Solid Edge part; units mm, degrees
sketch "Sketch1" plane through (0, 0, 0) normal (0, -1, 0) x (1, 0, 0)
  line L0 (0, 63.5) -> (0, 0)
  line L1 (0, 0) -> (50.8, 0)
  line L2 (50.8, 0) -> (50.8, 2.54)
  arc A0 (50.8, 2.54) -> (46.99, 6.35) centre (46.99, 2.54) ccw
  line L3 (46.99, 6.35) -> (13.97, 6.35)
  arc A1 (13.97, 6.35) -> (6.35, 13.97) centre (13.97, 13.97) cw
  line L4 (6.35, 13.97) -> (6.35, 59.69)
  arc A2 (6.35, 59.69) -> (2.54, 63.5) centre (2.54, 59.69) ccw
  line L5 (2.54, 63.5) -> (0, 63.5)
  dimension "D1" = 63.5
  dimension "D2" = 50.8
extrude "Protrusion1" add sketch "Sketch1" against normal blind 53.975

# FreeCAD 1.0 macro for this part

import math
import FreeCAD as App
import Part
import Sketcher
Q = App.Units.Quantity

doc = App.newDocument("Part")
params = doc.addObject("Spreadsheet::Sheet", "Params")
for row, (alias, value) in enumerate([
    ("sketch1_radius", "0.3 in"),
    ("sketch1_width", "2 in"),
    ("sketch1_radius2", "0.15 in"),
    ("sketch1_width2", "0.1 in"),
    ("sketch1_height", "2.5 in"),
    ("pad1_length", "2.125 in"),
], start=1):
    params.set(f"A{row}", alias)
    params.set(f"B{row}", "=" + value)
    params.setAlias(f"B{row}", alias)

body = doc.addObject("PartDesign::Body", "Body")

sketch1 = body.newObject("Sketcher::SketchObject", "Sketch")
sketch1.AttachmentSupport = (doc.getObject("XZ_Plane"), [""])
sketch1.MapMode = "FlatFace"
sketch1.addGeometry([
    Part.LineSegment(App.Vector(2.54, 63.5, 0), App.Vector(0, 63.5, 0)),
    Part.LineSegment(App.Vector(0, 63.5, 0), App.Vector(0, 0, 0)),
    Part.LineSegment(App.Vector(0, 0, 0), App.Vector(50.8, 0, 0)),
    Part.LineSegment(App.Vector(50.8, 0, 0), App.Vector(50.8, 2.54, 0)),
    Part.ArcOfCircle(Part.Circle(App.Vector(46.99, 2.54, 0), App.Vector(0, 0, 1), 3.81), math.radians(0), math.radians(90)),
    Part.LineSegment(App.Vector(46.99, 6.35, 0), App.Vector(13.97, 6.35, 0)),
    Part.ArcOfCircle(Part.Circle(App.Vector(13.97, 13.97, 0), App.Vector(0, 0, 1), 7.62), math.radians(180), math.radians(270)),
    Part.LineSegment(App.Vector(6.35, 13.97, 0), App.Vector(6.35, 59.69, 0)),
    Part.ArcOfCircle(Part.Circle(App.Vector(2.54, 59.69, 0), App.Vector(0, 0, 1), 3.81), math.radians(0), math.radians(90)),
], False)
sketch1.addConstraint([
    Sketcher.Constraint("Coincident", 0, 2, 1, 1),
    Sketcher.Constraint("Coincident", 1, 2, 2, 1),
    Sketcher.Constraint("Coincident", 2, 2, 3, 1),
    Sketcher.Constraint("Tangent", 3, 2, 4, 1),
    Sketcher.Constraint("Tangent", 4, 2, 5, 1),
    Sketcher.Constraint("Tangent", 5, 2, 6, 2),
    Sketcher.Constraint("Tangent", 6, 1, 7, 1),
    Sketcher.Constraint("Tangent", 7, 2, 8, 1),
    Sketcher.Constraint("Tangent", 8, 2, 0, 1),
    Sketcher.Constraint("Horizontal", 0),
    Sketcher.Constraint("Vertical", 1),
    Sketcher.Constraint("Horizontal", 2),
    Sketcher.Constraint("Vertical", 3),
    Sketcher.Constraint("Horizontal", 5),
    Sketcher.Constraint("Vertical", 7),
    Sketcher.Constraint("Coincident", 1, 2, -1, 1),
    Sketcher.Constraint("Equal", 4, 8),
    Sketcher.Constraint("Equal", 0, 3),
    Sketcher.Constraint("Radius", 6, Q("0.3 in")),
    Sketcher.Constraint("DistanceX", 2, 1, 2, 2, Q("2 in")),
    Sketcher.Constraint("Radius", 4, Q("0.15 in")),
    Sketcher.Constraint("DistanceX", 0, 2, 0, 1, Q("0.1 in")),
    Sketcher.Constraint("DistanceY", 1, 2, 1, 1, Q("2.5 in")),
])
sketch1.setExpression("Constraints[18]", "Params.sketch1_radius")
sketch1.setExpression("Constraints[19]", "Params.sketch1_width")
sketch1.setExpression("Constraints[20]", "Params.sketch1_radius2")
sketch1.setExpression("Constraints[21]", "Params.sketch1_width2")
sketch1.setExpression("Constraints[22]", "Params.sketch1_height")
pad1 = body.newObject("PartDesign::Pad", "Pad")
pad1.Profile = sketch1
pad1.setExpression("Length", "Params.pad1_length")
pad1.Reversed = True

doc.recompute()
